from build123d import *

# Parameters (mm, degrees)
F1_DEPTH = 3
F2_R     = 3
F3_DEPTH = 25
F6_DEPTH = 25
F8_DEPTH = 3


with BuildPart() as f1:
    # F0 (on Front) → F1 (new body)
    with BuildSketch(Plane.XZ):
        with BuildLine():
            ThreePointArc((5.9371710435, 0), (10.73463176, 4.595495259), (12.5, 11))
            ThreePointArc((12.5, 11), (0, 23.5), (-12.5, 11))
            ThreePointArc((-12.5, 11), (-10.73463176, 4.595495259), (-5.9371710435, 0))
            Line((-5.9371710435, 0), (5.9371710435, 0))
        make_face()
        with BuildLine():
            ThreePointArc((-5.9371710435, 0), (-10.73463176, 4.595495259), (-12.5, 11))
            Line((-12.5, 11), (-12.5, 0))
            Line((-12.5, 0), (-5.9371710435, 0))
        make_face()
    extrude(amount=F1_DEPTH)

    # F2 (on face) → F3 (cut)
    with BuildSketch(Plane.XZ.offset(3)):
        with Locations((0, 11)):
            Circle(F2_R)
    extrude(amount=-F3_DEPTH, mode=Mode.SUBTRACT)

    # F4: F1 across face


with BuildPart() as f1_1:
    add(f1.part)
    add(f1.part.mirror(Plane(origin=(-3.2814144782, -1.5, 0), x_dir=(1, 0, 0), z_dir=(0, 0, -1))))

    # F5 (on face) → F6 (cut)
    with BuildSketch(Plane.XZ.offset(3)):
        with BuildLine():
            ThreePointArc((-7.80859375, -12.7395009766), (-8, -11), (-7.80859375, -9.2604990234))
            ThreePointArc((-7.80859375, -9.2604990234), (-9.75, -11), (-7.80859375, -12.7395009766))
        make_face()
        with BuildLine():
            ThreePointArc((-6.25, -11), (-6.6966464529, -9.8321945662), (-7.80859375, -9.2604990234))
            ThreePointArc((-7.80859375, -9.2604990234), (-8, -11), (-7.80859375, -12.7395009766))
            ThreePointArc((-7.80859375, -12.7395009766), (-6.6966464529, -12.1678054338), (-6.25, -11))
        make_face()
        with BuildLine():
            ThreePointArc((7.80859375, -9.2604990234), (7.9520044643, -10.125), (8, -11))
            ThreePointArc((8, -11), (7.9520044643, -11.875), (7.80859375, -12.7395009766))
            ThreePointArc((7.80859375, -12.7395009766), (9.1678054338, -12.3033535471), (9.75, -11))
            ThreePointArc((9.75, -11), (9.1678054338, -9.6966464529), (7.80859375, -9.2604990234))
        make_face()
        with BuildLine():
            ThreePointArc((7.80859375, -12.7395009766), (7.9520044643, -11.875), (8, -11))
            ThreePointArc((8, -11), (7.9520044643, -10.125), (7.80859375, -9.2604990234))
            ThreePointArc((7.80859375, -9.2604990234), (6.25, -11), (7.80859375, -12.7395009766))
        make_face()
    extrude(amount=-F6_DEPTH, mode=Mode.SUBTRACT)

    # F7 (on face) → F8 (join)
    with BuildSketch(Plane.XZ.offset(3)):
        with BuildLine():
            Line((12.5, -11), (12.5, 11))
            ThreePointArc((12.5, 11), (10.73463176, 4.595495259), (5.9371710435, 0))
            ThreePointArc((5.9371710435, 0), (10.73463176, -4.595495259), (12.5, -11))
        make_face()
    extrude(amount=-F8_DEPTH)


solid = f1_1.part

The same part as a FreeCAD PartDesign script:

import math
import FreeCAD as App
import Part
import Sketcher
from FreeCAD import Vector

doc = App.newDocument("Part")
body = doc.addObject("PartDesign::Body", "Body")

sketch1 = body.newObject("Sketcher::SketchObject", "Sketch")
sketch1.AttachmentSupport = (doc.getObject("XZ_Plane"), [""])
sketch1.MapMode = "FlatFace"
sketch1.addGeometry([
    Part.ArcOfCircle(Part.Circle(Vector(0, 11, 0), Vector(0, 0, 1), 12), math.radians(-62), math.radians(0)),
    Part.ArcOfCircle(Part.Circle(Vector(0, 11, 0), Vector(0, 0, 1), 12), math.radians(0), math.radians(180)),
    Part.LineSegment(Vector(-12, 11, 0), Vector(-12, 0, 0)),
    Part.LineSegment(Vector(-12, 0, 0), Vector(6, 0, 0)),
], False)
sketch1.addConstraint([
    Sketcher.Constraint("Tangent", 0, 2, 1, 1),
    Sketcher.Constraint("Tangent", 1, 2, 2, 1),
    Sketcher.Constraint("Coincident", 2, 2, 3, 1),
    Sketcher.Constraint("Coincident", 3, 2, 0, 1),
    Sketcher.Constraint("Vertical", 2),
    Sketcher.Constraint("Horizontal", 3),
    Sketcher.Constraint("Equal", 0, 1),
    Sketcher.Constraint("Symmetric", 0, 2, 1, 2, -2),
    Sketcher.Constraint("PointOnObject", 2, 2, -1),
    Sketcher.Constraint("Radius", 0, 12.5),
    Sketcher.Constraint("DistanceY", 2, 2, 2, 1, 11.0),
])
pad1 = body.newObject("PartDesign::Pad", "Pad")
pad1.Profile = sketch1
pad1.Length = 3

sketch2 = body.newObject("Sketcher::SketchObject", "Sketch001")
sketch2.AttachmentSupport = (doc.getObject("XZ_Plane"), [""])
sketch2.MapMode = "FlatFace"
sketch2.AttachmentOffset = App.Placement(Vector(0, 0, 3), App.Rotation())
sketch2.addGeometry(Part.Circle(Vector(0, 11, 0), Vector(0, 0, 1), 3), False)
sketch2.addConstraint([
    Sketcher.Constraint("PointOnObject", 0, 3, -2),
    Sketcher.Constraint("Diameter", 0, 6.0),
    Sketcher.Constraint("DistanceY", -1, 1, 0, 3, 11.0),
])
pocket1 = body.newObject("PartDesign::Pocket", "Pocket")
pocket1.Profile = sketch2
pocket1.Length = 25
body2 = doc.addObject("PartDesign::Body", "Body001")
doc.recompute()

body2.BaseFeature = body
doc.recompute()

mirroring = doc.addObject("Part::Mirroring", "Mirroring")
mirroring.Source = body
mirroring.Base = Vector(-3.281414, -1.5, 0)
mirroring.Normal = Vector(0, 0, -1)
body3 = doc.addObject("PartDesign::Body", "Body002")
body3.BaseFeature = mirroring
boolean = body2.newObject("PartDesign::Boolean", "Boolean")
boolean.Type = "Fuse"
boolean.addObjects([body3])
doc.recompute()

sketch3 = body2.newObject("Sketcher::SketchObject", "Sketch002")
sketch3.AttachmentSupport = (doc.getObject("XZ_Plane001"), [""])
sketch3.MapMode = "FlatFace"
sketch3.AttachmentOffset = App.Placement(Vector(0, 0, 3), App.Rotation())
sketch3.addGeometry([
    Part.ArcOfCircle(Part.Circle(Vector(-8, -11, 0), Vector(0, 0, 1), 1.8), math.radians(84), math.radians(276)),
    Part.ArcOfCircle(Part.Circle(Vector(-8, -11, 0), Vector(0, 0, 1), 1.8), math.radians(-84), math.radians(0)),
    Part.ArcOfCircle(Part.Circle(Vector(-8, -11, 0), Vector(0, 0, 1), 1.8), math.radians(0), math.radians(84)),
    Part.ArcOfCircle(Part.Circle(Vector(8, -11, 0), Vector(0, 0, 1), 1.8), math.radians(-96), math.radians(0)),
    Part.ArcOfCircle(Part.Circle(Vector(8, -11, 0), Vector(0, 0, 1), 1.8), math.radians(0), math.radians(96)),
    Part.ArcOfCircle(Part.Circle(Vector(8, -11, 0), Vector(0, 0, 1), 1.8), math.radians(96), math.radians(264)),
], False)
sketch3.addConstraint([
    Sketcher.Constraint("Tangent", 0, 2, 1, 1),
    Sketcher.Constraint("Tangent", 1, 2, 2, 1),
    Sketcher.Constraint("Tangent", 2, 2, 0, 1),
    Sketcher.Constraint("Tangent", 3, 2, 4, 1),
    Sketcher.Constraint("Tangent", 4, 2, 5, 1),
    Sketcher.Constraint("Tangent", 5, 2, 3, 1),
    Sketcher.Constraint("Equal", 2, 3),
    Sketcher.Constraint("Symmetric", 0, 3, 3, 3, -2),
    Sketcher.Constraint("Horizontal", 5, 3, 1, 2),
    Sketcher.Constraint("Horizontal", 1, 2, 3, 2),
    Sketcher.Constraint("Horizontal", 2, 2, 4, 2),
    Sketcher.Constraint("Horizontal", 0, 2, 5, 2),
    Sketcher.Constraint("Vertical", 0, 2, 2, 2),
    Sketcher.Constraint("Radius", 0, 1.75),
    Sketcher.Constraint("DistanceX", 0, 3, -1, 1, 8.0),
    Sketcher.Constraint("DistanceY", 0, 3, -1, 1, 11.0),
    Sketcher.Constraint("DistanceY", 0, 2, 2, 2, 3.479002),
])
pocket2 = body2.newObject("PartDesign::Pocket", "Pocket001")
pocket2.Profile = sketch3
pocket2.Length = 25

sketch4 = body2.newObject("Sketcher::SketchObject", "Sketch003")
sketch4.AttachmentSupport = (doc.getObject("XZ_Plane001"), [""])
sketch4.MapMode = "FlatFace"
sketch4.AttachmentOffset = App.Placement(Vector(0, 0, 3), App.Rotation())
sketch4.addGeometry([
    Part.LineSegment(Vector(12, -11, 0), Vector(12, 11, 0)),
    Part.ArcOfCircle(Part.Circle(Vector(0, 11, 0), Vector(0, 0, 1), 12), math.radians(-62), math.radians(0)),
    Part.ArcOfCircle(Part.Circle(Vector(0, -11, 0), Vector(0, 0, 1), 12), math.radians(0), math.radians(62)),
], False)
sketch4.addConstraint([
    Sketcher.Constraint("Tangent", 0, 2, 1, 2),
    Sketcher.Constraint("Coincident", 1, 1, 2, 2),
    Sketcher.Constraint("Tangent", 2, 1, 0, 1),
    Sketcher.Constraint("Vertical", 0),
    Sketcher.Constraint("Equal", 1, 2),
    Sketcher.Constraint("Symmetric", 1, 3, 2, 3, -1, 1),
    Sketcher.Constraint("Radius", 1, 12.5),
    Sketcher.Constraint("DistanceY", 0, 1, 0, 2, 22.0),
])
pad2 = body2.newObject("PartDesign::Pad", "Pad001")
pad2.Profile = sketch4
pad2.Length = 3
pad2.Reversed = True
mirroring.Visibility = False

doc.recompute()
